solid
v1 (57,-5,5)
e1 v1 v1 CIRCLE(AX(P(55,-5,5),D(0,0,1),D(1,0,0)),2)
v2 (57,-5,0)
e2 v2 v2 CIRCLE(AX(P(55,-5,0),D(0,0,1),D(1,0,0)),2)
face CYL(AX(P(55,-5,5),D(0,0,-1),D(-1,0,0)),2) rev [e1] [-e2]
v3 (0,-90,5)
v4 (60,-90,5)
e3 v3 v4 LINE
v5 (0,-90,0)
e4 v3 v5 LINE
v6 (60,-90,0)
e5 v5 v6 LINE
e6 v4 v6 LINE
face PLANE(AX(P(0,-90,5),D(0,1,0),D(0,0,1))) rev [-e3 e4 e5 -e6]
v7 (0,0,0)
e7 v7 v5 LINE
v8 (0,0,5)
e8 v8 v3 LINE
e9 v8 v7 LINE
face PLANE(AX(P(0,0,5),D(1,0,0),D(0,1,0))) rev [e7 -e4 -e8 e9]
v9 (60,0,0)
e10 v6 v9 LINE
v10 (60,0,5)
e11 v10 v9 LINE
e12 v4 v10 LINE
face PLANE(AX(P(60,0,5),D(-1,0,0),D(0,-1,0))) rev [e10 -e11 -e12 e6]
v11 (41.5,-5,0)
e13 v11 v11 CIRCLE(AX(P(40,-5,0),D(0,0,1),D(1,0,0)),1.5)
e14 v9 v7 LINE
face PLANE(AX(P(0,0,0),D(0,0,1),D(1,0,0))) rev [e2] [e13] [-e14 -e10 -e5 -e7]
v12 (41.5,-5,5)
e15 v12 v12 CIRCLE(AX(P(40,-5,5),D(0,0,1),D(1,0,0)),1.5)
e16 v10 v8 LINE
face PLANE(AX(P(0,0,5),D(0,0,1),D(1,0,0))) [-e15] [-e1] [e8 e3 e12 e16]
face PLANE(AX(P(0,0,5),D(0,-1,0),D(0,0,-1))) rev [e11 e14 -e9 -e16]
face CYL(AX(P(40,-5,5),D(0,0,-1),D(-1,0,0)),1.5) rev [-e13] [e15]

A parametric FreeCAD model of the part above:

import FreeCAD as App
import Part
import Sketcher

doc = App.newDocument("Part")
body = doc.addObject("PartDesign::Body", "Body")

# Sketch on XY plane
sketch1 = doc.addObject("Sketcher::SketchObject", "Sketch")
body.addObject(sketch1)
sketch1.AttachmentSupport = (doc.XY_Plane, [""])
sketch1.MapMode = "FlatFace"
sketch1.addGeometry([
    Part.LineSegment(App.Vector(0, 0, 0), App.Vector(0, -90, 0)),  # 0
    Part.LineSegment(App.Vector(0, -90, 0), App.Vector(60, -90, 0)),  # 1
    Part.LineSegment(App.Vector(60, -90, 0), App.Vector(60, 0, 0)),  # 2
    Part.LineSegment(App.Vector(60, 0, 0), App.Vector(0, 0, 0)),  # 3
    Part.Circle(App.Vector(40, -5, 0), App.Vector(0, 0, 1), 1.5),  # 4
    Part.Circle(App.Vector(55, -5, 0), App.Vector(0, 0, 1), 2),  # 5
], False)
sketch1.addConstraint([
    Sketcher.Constraint("Coincident", 0, 2, 1, 1),
    Sketcher.Constraint("Coincident", 1, 2, 2, 1),
    Sketcher.Constraint("Coincident", 2, 2, 3, 1),
    Sketcher.Constraint("Coincident", 3, 2, 0, 1),
    Sketcher.Constraint("Vertical", 0),
    Sketcher.Constraint("Horizontal", 1),
    Sketcher.Constraint("Vertical", 2),
    Sketcher.Constraint("Horizontal", 3),
    Sketcher.Constraint("Coincident", 3, 2, -1, 1),
    Sketcher.Constraint("Horizontal", 4, 3, 5, 3),
    Sketcher.Constraint("Diameter", 4, 3.0),
    Sketcher.Constraint("Diameter", 5, 4.0),
    Sketcher.Constraint("DistanceX", 1, 1, 1, 2, 60.0),
    Sketcher.Constraint("DistanceY", 0, 2, 0, 1, 90.0),
    Sketcher.Constraint("DistanceX", -1, 1, 4, 3, 40.0),
    Sketcher.Constraint("DistanceY", 4, 3, -1, 1, 5.0),
    Sketcher.Constraint("DistanceX", -1, 1, 5, 3, 55.0),
])
pad1 = doc.addObject("PartDesign::Pad", "Pad")
body.addObject(pad1)
pad1.Profile = sketch1
pad1.Length = 5

doc.recompute()
